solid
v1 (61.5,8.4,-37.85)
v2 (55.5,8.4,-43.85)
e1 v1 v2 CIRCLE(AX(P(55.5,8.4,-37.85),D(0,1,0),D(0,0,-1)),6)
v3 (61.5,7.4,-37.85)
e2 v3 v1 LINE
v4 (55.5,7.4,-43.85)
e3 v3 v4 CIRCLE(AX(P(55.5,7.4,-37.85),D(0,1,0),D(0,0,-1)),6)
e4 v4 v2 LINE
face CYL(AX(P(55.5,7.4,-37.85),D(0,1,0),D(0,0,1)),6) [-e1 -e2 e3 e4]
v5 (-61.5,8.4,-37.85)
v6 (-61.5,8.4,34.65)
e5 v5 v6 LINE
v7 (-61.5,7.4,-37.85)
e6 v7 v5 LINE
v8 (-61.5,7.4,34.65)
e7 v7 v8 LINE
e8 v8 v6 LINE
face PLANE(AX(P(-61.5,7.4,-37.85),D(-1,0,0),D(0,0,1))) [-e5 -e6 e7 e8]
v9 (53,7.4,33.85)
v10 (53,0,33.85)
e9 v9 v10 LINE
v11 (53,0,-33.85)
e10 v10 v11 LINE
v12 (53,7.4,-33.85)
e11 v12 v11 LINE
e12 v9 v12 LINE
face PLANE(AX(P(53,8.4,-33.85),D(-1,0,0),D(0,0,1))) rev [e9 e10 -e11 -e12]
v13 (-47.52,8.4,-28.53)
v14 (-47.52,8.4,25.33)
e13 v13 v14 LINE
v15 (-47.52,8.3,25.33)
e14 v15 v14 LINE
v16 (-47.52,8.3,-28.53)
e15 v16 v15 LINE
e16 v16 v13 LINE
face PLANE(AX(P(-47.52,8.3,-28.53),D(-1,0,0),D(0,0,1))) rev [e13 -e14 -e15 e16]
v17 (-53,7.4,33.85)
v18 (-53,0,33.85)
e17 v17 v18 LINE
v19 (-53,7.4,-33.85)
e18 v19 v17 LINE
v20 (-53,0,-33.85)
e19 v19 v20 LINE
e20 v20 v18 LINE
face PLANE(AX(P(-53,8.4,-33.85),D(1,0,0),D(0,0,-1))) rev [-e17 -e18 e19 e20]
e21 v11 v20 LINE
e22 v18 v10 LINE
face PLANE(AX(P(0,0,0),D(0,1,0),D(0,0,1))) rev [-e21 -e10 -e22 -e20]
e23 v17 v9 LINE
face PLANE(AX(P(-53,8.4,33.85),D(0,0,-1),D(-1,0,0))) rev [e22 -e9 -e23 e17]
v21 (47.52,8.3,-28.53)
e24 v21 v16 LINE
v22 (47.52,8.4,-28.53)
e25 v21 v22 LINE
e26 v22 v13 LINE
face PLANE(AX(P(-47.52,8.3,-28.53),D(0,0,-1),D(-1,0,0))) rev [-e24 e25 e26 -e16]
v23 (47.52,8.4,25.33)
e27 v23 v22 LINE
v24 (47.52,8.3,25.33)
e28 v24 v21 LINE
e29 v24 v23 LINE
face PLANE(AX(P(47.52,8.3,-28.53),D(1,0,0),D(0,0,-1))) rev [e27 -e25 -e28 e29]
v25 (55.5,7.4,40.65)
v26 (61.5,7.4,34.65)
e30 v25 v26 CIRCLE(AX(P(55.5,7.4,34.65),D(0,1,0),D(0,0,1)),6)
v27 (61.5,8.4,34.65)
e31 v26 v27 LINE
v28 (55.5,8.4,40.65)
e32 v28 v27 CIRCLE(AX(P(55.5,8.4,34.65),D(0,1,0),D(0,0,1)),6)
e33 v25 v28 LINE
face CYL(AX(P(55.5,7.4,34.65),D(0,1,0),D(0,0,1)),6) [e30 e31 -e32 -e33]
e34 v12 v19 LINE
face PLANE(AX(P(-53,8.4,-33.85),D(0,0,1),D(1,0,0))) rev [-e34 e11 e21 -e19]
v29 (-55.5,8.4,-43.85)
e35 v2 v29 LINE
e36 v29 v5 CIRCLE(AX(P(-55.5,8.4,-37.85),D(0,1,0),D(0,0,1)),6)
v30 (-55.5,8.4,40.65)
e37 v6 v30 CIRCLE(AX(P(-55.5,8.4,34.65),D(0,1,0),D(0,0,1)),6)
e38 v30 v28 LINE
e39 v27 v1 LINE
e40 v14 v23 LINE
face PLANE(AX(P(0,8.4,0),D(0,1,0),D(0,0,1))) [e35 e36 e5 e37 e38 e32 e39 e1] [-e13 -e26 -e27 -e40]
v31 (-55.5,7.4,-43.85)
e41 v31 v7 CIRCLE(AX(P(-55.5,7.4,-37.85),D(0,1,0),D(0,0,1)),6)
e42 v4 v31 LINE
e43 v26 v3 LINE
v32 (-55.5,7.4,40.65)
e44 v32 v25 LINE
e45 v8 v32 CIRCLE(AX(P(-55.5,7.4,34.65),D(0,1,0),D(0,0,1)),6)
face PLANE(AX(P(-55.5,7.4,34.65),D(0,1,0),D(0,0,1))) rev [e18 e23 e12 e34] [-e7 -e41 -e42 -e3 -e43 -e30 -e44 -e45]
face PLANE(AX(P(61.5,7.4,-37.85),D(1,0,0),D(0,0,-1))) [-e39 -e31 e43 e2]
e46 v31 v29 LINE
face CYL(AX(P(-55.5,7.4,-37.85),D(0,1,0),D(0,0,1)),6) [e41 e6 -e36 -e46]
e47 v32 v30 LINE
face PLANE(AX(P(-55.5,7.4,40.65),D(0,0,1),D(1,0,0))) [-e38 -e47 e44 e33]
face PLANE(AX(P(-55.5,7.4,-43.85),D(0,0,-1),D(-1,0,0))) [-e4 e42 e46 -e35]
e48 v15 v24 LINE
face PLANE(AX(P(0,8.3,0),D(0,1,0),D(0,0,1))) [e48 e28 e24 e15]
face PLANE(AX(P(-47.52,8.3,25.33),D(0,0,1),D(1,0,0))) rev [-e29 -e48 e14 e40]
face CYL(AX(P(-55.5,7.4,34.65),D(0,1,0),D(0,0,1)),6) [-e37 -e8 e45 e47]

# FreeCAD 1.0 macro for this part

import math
import FreeCAD as App
import Part
import Sketcher
from FreeCAD import Vector
Q = App.Units.Quantity

doc = App.newDocument("Part")
body = doc.addObject("PartDesign::Body", "Body")

# Sketch on XZ plane
sketch1 = body.newObject("Sketcher::SketchObject", "Sketch")
sketch1.AttachmentSupport = (doc.getObject("XZ_Plane"), [""])
sketch1.MapMode = "FlatFace"
sketch1.addGeometry(Part.LineSegment(Vector(-53, -33.85, 0), Vector(-53, 33.85, 0)), False)
sketch1.addGeometry(Part.LineSegment(Vector(-53, 33.85, 0), Vector(53, 33.85, 0)), False)
sketch1.addGeometry(Part.LineSegment(Vector(53, 33.85, 0), Vector(53, -33.85, 0)), False)
sketch1.addGeometry(Part.LineSegment(Vector(53, -33.85, 0), Vector(-53, -33.85, 0)), False)
sketch1.addConstraint(Sketcher.Constraint("Coincident", 0, 2, 1, 1))
sketch1.addConstraint(Sketcher.Constraint("Coincident", 1, 2, 2, 1))
sketch1.addConstraint(Sketcher.Constraint("Coincident", 2, 2, 3, 1))
sketch1.addConstraint(Sketcher.Constraint("Coincident", 3, 2, 0, 1))
sketch1.addConstraint(Sketcher.Constraint("Vertical", 0))
sketch1.addConstraint(Sketcher.Constraint("Horizontal", 1))
sketch1.addConstraint(Sketcher.Constraint("Vertical", 2))
sketch1.addConstraint(Sketcher.Constraint("Horizontal", 3))
sketch1.addConstraint(Sketcher.Constraint("Symmetric", 0, 2, 2, 2, -1, 1))
sketch1.addConstraint(Sketcher.Constraint("DistanceX", 1, 1, 1, 2, Q("106 mm")))
sketch1.addConstraint(Sketcher.Constraint("DistanceY", 0, 1, 0, 2, Q("67.7 mm")))
pad1 = body.newObject("PartDesign::Pad", "Pad")
pad1.Profile = sketch1
pad1.Length = 8.4
pad1.Reversed = True

# Sketch on XZ plane
sketch2 = body.newObject("Sketcher::SketchObject", "Sketch001")
sketch2.AttachmentSupport = (doc.getObject("XZ_Plane"), [""])
sketch2.MapMode = "FlatFace"
sketch2.AttachmentOffset = App.Placement(Vector(0, 0, -8.4), App.Rotation())
sketch2.addGeometry(Part.LineSegment(Vector(55.5, -43.85, 0), Vector(-55.5, -43.85, 0)), False)
sketch2.addGeometry(Part.ArcOfCircle(Part.Circle(Vector(-55.5, -37.85, 0), Vector(0, 0, 1), 6), math.radians(180), math.radians(270)), False)
sketch2.addGeometry(Part.LineSegment(Vector(-61.5, -37.85, 0), Vector(-61.5, 34.65, 0)), False)
sketch2.addGeometry(Part.ArcOfCircle(Part.Circle(Vector(-55.5, 34.65, 0), Vector(0, 0, 1), 6), math.radians(90), math.radians(180)), False)
sketch2.addGeometry(Part.LineSegment(Vector(-55.5, 40.65, 0), Vector(55.5, 40.65, 0)), False)
sketch2.addGeometry(Part.ArcOfCircle(Part.Circle(Vector(55.5, 34.65, 0), Vector(0, 0, 1), 6), math.radians(0), math.radians(90)), False)
sketch2.addGeometry(Part.LineSegment(Vector(61.5, 34.65, 0), Vector(61.5, -37.85, 0)), False)
sketch2.addGeometry(Part.ArcOfCircle(Part.Circle(Vector(55.5, -37.85, 0), Vector(0, 0, 1), 6), math.radians(-90), math.radians(0)), False)
sketch2.addConstraint(Sketcher.Constraint("Tangent", 0, 2, 1, 2))
sketch2.addConstraint(Sketcher.Constraint("Tangent", 1, 1, 2, 1))
sketch2.addConstraint(Sketcher.Constraint("Tangent", 2, 2, 3, 2))
sketch2.addConstraint(Sketcher.Constraint("Tangent", 3, 1, 4, 1))
sketch2.addConstraint(Sketcher.Constraint("Tangent", 4, 2, 5, 2))
sketch2.addConstraint(Sketcher.Constraint("Tangent", 5, 1, 6, 1))
sketch2.addConstraint(Sketcher.Constraint("Tangent", 6, 2, 7, 2))
sketch2.addConstraint(Sketcher.Constraint("Tangent", 7, 1, 0, 1))
sketch2.addConstraint(Sketcher.Constraint("Horizontal", 0))
sketch2.addConstraint(Sketcher.Constraint("Vertical", 2))
sketch2.addConstraint(Sketcher.Constraint("Horizontal", 4))
sketch2.addConstraint(Sketcher.Constraint("Vertical", 6))
sketch2.addConstraint(Sketcher.Constraint("Equal", 1, 3))
sketch2.addConstraint(Sketcher.Constraint("Equal", 3, 5))
sketch2.addConstraint(Sketcher.Constraint("Equal", 5, 7))
sketch2.addConstraint(Sketcher.Constraint("Radius", 1, Q("6 mm")))
sketch2.addConstraint(Sketcher.Constraint("DistanceX", 0, 2, 0, 1, Q("111 mm")))
sketch2.addConstraint(Sketcher.Constraint("DistanceY", 2, 1, 2, 2, Q("72.5 mm")))
sketch2.addConstraint(Sketcher.Constraint("DistanceX", 1, 3, -1, 1, Q("55.5 mm")))
sketch2.addConstraint(Sketcher.Constraint("DistanceY", 1, 3, -1, 1, Q("37.85 mm")))
pad2 = body.newObject("PartDesign::Pad", "Pad001")
pad2.Profile = sketch2
pad2.Length = 1

# Sketch on XZ plane
sketch3 = body.newObject("Sketcher::SketchObject", "Sketch002")
sketch3.AttachmentSupport = (doc.getObject("XZ_Plane"), [""])
sketch3.MapMode = "FlatFace"
sketch3.AttachmentOffset = App.Placement(Vector(0, 0, -8.4), App.Rotation())
sketch3.addGeometry(Part.LineSegment(Vector(-47.52, -28.53, 0), Vector(-47.52, 25.33, 0)), False)
sketch3.addGeometry(Part.LineSegment(Vector(-47.52, 25.33, 0), Vector(47.52, 25.33, 0)), False)
sketch3.addGeometry(Part.LineSegment(Vector(47.52, 25.33, 0), Vector(47.52, -28.53, 0)), False)
sketch3.addGeometry(Part.LineSegment(Vector(47.52, -28.53, 0), Vector(-47.52, -28.53, 0)), False)
sketch3.addConstraint(Sketcher.Constraint("Coincident", 0, 2, 1, 1))
sketch3.addConstraint(Sketcher.Constraint("Coincident", 1, 2, 2, 1))
sketch3.addConstraint(Sketcher.Constraint("Coincident", 2, 2, 3, 1))
sketch3.addConstraint(Sketcher.Constraint("Coincident", 3, 2, 0, 1))
sketch3.addConstraint(Sketcher.Constraint("Vertical", 0))
sketch3.addConstraint(Sketcher.Constraint("Horizontal", 1))
sketch3.addConstraint(Sketcher.Constraint("Vertical", 2))
sketch3.addConstraint(Sketcher.Constraint("Horizontal", 3))
sketch3.addConstraint(Sketcher.Constraint("DistanceX", 1, 1, 1, 2, Q("95.04 mm")))
sketch3.addConstraint(Sketcher.Constraint("DistanceY", 0, 1, 0, 2, Q("53.86 mm")))
sketch3.addConstraint(Sketcher.Constraint("DistanceX", 0, 2, -1, 1, Q("47.52 mm")))
sketch3.addConstraint(Sketcher.Constraint("DistanceY", -1, 1, 0, 2, Q("25.33 mm")))
pocket1 = body.newObject("PartDesign::Pocket", "Pocket")
pocket1.Profile = sketch3
pocket1.Length = 0.1
pocket1.Reversed = True

doc.recompute()
